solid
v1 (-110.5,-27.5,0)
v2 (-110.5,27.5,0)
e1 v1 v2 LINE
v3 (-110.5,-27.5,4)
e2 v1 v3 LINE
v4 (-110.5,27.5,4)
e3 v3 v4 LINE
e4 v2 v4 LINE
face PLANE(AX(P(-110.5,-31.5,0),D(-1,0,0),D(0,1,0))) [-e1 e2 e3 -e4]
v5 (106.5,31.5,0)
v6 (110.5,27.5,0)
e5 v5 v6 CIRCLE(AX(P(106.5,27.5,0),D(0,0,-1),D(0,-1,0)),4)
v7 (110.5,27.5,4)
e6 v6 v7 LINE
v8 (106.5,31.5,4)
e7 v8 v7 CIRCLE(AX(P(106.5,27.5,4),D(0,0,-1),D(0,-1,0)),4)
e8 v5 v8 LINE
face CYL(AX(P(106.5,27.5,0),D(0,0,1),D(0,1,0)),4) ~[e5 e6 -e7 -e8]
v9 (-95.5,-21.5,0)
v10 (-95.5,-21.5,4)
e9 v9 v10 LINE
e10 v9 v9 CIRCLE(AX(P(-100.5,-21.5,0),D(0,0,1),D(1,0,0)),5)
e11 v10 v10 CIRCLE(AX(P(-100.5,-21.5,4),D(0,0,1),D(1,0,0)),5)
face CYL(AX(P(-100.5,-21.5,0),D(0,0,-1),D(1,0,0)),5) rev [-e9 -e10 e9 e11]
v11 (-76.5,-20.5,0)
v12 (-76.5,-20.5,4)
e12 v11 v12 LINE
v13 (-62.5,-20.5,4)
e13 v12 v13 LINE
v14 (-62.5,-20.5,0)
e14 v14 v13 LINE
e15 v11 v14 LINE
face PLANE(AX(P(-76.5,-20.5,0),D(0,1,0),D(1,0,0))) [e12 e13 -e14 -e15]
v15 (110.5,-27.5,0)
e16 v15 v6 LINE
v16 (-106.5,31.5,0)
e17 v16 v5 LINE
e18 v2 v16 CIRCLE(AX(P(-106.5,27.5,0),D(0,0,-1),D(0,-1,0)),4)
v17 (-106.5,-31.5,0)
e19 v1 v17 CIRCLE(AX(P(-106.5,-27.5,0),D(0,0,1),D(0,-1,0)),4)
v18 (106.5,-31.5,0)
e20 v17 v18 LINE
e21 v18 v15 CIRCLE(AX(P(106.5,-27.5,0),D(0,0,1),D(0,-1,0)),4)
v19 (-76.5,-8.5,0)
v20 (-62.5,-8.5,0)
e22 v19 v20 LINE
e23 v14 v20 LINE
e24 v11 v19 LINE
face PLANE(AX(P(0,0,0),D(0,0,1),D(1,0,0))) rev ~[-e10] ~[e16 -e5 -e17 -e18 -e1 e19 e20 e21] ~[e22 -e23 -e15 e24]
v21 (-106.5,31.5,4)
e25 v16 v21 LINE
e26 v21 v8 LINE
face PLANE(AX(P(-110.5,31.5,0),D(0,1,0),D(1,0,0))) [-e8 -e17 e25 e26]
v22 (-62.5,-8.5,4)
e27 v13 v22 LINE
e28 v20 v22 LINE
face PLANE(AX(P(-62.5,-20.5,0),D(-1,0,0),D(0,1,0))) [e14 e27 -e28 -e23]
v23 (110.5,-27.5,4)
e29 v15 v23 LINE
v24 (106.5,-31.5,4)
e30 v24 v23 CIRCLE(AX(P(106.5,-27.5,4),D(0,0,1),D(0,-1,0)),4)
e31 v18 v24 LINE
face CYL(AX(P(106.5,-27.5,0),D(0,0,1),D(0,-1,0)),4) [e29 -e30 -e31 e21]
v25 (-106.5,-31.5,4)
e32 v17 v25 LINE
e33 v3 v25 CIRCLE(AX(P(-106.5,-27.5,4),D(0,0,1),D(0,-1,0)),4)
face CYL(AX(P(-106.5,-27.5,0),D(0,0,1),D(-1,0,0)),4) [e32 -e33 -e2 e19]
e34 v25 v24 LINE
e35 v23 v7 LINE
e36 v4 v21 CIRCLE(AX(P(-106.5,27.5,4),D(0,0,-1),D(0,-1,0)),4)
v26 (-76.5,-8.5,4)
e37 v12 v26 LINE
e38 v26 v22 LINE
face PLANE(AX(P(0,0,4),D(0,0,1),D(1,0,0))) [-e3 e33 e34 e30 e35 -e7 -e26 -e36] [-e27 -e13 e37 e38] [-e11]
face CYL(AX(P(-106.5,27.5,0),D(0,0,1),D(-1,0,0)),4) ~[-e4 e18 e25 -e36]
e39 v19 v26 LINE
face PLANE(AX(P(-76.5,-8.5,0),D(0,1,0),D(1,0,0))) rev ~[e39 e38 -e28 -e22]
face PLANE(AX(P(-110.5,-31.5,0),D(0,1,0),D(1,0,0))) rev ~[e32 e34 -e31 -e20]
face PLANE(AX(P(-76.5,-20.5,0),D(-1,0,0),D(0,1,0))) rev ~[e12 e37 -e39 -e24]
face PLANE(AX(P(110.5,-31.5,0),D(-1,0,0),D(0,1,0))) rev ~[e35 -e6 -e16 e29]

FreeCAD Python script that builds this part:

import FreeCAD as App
import Part
import Sketcher
from FreeCAD import Vector


def edges_at(feature, points):
    """Names of the edges that pass closest to the given points."""
    edges = feature.Shape.Edges
    near = lambda p: min(range(len(edges)), key=lambda i: edges[i].distToShape(Part.Vertex(*p))[0])
    return sorted({f"Edge{near(p) + 1}" for p in points})

doc = App.newDocument("Part")
params = doc.addObject("Spreadsheet::Sheet", "Params")
for row, (alias, value) in enumerate([
    ("sketch1_diameter", "10 mm"),
    ("sketch1_width", "221 mm"),
    ("sketch1_width2", "14 mm"),
    ("sketch1_height", "63 mm"),
    ("sketch1_height2", "12 mm"),
    ("pad1_length", "4 mm"),
    ("fillet_radius", "4 mm"),
], start=1):
    params.set(f"A{row}", alias)
    params.set(f"B{row}", "=" + value)
    params.setAlias(f"B{row}", alias)

body = doc.addObject("PartDesign::Body", "Body")

sketch1 = doc.addObject("Sketcher::SketchObject", "Sketch")
body.addObject(sketch1)
sketch1.AttachmentSupport = (doc.XY_Plane, [""])
sketch1.MapMode = "FlatFace"
sketch1.addGeometry(Part.LineSegment(Vector(-110, 32, 0), Vector(-110, -32, 0)), False)
sketch1.addGeometry(Part.LineSegment(Vector(-110, -32, 0), Vector(110, -32, 0)), False)
sketch1.addGeometry(Part.LineSegment(Vector(110, -32, 0), Vector(110, 32, 0)), False)
sketch1.addGeometry(Part.LineSegment(Vector(110, 32, 0), Vector(-110, 32, 0)), False)
sketch1.addGeometry(Part.Circle(Vector(-100, -22, 0), Vector(0, 0, 1), 5), False)
sketch1.addGeometry(Part.LineSegment(Vector(-62, -20, 0), Vector(-76, -20, 0)), False)
sketch1.addGeometry(Part.LineSegment(Vector(-76, -20, 0), Vector(-76, -8, 0)), False)
sketch1.addGeometry(Part.LineSegment(Vector(-76, -8, 0), Vector(-62, -8, 0)), False)
sketch1.addGeometry(Part.LineSegment(Vector(-62, -8, 0), Vector(-62, -20, 0)), False)
sketch1.addConstraint(Sketcher.Constraint("Coincident", 0, 2, 1, 1))
sketch1.addConstraint(Sketcher.Constraint("Coincident", 1, 2, 2, 1))
sketch1.addConstraint(Sketcher.Constraint("Coincident", 2, 2, 3, 1))
sketch1.addConstraint(Sketcher.Constraint("Coincident", 3, 2, 0, 1))
sketch1.addConstraint(Sketcher.Constraint("Coincident", 5, 2, 6, 1))
sketch1.addConstraint(Sketcher.Constraint("Coincident", 6, 2, 7, 1))
sketch1.addConstraint(Sketcher.Constraint("Coincident", 7, 2, 8, 1))
sketch1.addConstraint(Sketcher.Constraint("Coincident", 8, 2, 5, 1))
sketch1.addConstraint(Sketcher.Constraint("Vertical", 0))
sketch1.addConstraint(Sketcher.Constraint("Horizontal", 1))
sketch1.addConstraint(Sketcher.Constraint("Vertical", 2))
sketch1.addConstraint(Sketcher.Constraint("Horizontal", 3))
sketch1.addConstraint(Sketcher.Constraint("Horizontal", 5))
sketch1.addConstraint(Sketcher.Constraint("Vertical", 6))
sketch1.addConstraint(Sketcher.Constraint("Horizontal", 7))
sketch1.addConstraint(Sketcher.Constraint("Vertical", 8))
sketch1.addConstraint(Sketcher.Constraint("Symmetric", 0, 2, 2, 2, -1, 1))
sketch1.addConstraint(Sketcher.Constraint("Diameter", 4, 10.0))
sketch1.addConstraint(Sketcher.Constraint("DistanceX", 1, 1, 1, 2, 221.0))
sketch1.addConstraint(Sketcher.Constraint("DistanceX", 5, 2, 5, 1, 14.0))
sketch1.addConstraint(Sketcher.Constraint("DistanceY", 0, 2, 0, 1, 63.0))
sketch1.addConstraint(Sketcher.Constraint("DistanceY", 6, 1, 6, 2, 12.0))
sketch1.addConstraint(Sketcher.Constraint("DistanceX", 0, 2, 4, 3, 10.0))
sketch1.addConstraint(Sketcher.Constraint("DistanceY", 0, 2, 4, 3, 10.0))
sketch1.addConstraint(Sketcher.Constraint("DistanceX", 4, 3, 5, 2, 24.0))
sketch1.addConstraint(Sketcher.Constraint("DistanceY", 4, 3, 5, 2, 1.0))
sketch1.setExpression("Constraints[17]", "Params.sketch1_diameter")
sketch1.setExpression("Constraints[18]", "Params.sketch1_width")
sketch1.setExpression("Constraints[19]", "Params.sketch1_width2")
sketch1.setExpression("Constraints[20]", "Params.sketch1_height")
sketch1.setExpression("Constraints[21]", "Params.sketch1_height2")
pad1 = doc.addObject("PartDesign::Pad", "Pad")
body.addObject(pad1)
pad1.Profile = sketch1
pad1.setExpression("Length", "Params.pad1_length")
doc.recompute()

fillet = doc.addObject("PartDesign::Fillet", "Fillet")
body.addObject(fillet)
fillet.Base = (pad1, edges_at(pad1, [
    (110.5, 31.5, 2),
    (110.5, -31.5, 2),
    (-110.5, -31.5, 2),
    (-110.5, 31.5, 2),
]))
fillet.setExpression("Radius", "Params.fillet_radius")

doc.recompute()
